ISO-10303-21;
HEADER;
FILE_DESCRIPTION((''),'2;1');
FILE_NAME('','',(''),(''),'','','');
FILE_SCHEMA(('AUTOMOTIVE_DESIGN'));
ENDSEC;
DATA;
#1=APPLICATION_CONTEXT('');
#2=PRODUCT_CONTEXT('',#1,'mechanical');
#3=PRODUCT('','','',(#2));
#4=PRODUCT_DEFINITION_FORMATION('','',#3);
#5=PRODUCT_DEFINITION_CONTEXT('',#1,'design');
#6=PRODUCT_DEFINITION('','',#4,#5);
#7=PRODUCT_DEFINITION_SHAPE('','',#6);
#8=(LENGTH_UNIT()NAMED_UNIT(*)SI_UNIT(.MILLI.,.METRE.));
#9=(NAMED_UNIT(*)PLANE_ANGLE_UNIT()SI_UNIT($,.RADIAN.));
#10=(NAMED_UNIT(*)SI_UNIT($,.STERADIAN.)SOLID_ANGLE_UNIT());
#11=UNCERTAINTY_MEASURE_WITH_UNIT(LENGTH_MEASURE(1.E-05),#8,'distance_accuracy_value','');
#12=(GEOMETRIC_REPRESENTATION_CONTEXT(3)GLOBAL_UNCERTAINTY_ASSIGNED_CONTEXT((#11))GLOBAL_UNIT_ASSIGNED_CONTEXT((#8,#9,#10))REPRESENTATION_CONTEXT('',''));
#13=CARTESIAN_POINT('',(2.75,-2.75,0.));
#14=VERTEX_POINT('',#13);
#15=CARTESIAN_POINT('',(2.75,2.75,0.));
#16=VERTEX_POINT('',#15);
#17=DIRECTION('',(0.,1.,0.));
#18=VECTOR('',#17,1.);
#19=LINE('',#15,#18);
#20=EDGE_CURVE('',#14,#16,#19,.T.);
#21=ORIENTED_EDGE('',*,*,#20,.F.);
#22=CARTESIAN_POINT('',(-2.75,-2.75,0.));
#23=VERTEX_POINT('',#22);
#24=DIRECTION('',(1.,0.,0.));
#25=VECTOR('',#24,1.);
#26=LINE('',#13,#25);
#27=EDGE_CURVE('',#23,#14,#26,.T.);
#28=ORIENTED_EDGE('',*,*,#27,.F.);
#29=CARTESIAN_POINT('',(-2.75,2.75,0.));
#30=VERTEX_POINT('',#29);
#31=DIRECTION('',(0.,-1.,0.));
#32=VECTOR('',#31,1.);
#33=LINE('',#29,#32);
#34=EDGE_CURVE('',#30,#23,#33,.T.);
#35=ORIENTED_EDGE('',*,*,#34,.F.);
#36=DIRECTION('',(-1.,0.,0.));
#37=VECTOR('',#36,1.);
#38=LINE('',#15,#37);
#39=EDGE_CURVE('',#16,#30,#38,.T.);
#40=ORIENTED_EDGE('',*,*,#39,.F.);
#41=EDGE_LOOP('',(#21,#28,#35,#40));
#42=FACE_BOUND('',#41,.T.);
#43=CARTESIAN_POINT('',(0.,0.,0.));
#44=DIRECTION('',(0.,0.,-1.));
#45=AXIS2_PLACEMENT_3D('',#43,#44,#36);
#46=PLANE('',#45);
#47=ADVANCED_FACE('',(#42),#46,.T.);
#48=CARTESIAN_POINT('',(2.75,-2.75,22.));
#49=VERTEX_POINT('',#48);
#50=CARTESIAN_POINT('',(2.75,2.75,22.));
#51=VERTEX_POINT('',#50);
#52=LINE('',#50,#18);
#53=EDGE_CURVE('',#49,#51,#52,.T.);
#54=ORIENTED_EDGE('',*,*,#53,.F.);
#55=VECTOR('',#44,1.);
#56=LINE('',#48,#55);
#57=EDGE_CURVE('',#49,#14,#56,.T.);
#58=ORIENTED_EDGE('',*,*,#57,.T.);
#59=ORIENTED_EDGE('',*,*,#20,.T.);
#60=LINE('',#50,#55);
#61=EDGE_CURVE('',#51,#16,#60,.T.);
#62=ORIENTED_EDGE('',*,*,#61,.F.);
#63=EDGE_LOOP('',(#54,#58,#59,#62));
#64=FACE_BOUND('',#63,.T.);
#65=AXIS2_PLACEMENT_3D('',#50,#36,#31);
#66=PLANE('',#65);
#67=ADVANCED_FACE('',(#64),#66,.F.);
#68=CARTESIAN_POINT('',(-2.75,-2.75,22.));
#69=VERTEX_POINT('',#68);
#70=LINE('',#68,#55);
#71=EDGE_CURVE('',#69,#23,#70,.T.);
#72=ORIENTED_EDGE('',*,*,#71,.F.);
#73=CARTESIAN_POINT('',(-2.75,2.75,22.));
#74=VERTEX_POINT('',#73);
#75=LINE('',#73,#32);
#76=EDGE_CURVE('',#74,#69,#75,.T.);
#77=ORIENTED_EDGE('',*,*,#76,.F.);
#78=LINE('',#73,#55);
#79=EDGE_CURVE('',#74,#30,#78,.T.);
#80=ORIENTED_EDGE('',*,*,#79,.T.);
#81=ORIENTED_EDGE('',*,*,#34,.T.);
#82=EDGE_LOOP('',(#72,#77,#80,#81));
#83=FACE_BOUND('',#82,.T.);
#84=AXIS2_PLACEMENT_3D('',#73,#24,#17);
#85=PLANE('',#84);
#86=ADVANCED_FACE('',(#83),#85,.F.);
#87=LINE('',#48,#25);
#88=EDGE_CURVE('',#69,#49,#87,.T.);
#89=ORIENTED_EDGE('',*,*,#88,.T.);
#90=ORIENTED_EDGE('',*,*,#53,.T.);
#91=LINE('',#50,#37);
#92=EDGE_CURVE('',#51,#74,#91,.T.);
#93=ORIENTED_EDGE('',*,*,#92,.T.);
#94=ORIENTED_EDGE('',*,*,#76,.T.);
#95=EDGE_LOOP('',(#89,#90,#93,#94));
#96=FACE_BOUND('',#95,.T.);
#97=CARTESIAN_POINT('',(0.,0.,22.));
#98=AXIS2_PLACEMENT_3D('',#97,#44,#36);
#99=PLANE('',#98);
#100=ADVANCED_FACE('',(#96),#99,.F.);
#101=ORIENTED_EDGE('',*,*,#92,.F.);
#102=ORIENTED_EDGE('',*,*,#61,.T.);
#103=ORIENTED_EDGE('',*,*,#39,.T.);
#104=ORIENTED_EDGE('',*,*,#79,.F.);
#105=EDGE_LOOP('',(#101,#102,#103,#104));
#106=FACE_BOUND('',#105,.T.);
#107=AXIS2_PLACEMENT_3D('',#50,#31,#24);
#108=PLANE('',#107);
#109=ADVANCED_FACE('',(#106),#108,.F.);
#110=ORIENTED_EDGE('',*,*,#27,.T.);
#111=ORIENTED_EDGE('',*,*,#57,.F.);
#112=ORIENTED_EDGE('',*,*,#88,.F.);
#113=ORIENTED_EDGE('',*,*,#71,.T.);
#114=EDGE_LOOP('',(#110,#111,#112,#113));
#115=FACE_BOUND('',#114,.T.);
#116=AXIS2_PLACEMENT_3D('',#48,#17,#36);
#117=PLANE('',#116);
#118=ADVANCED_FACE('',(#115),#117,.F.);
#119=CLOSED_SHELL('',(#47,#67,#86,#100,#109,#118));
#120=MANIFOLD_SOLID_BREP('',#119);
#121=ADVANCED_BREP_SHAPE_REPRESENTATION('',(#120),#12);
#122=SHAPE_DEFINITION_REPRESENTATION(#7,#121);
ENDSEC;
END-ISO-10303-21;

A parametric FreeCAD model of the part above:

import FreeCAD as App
import Part
import Sketcher

V = App.Vector
Q = App.Units.Quantity

doc = App.newDocument("Part")
body = doc.addObject("PartDesign::Body", "Body")

# Sketch on XY plane
sketch1 = body.newObject("Sketcher::SketchObject", "Sketch")
sketch1.AttachmentSupport = (doc.getObject("XY_Plane"), [""])
sketch1.MapMode = "FlatFace"
sketch1.addGeometry(Part.LineSegment(V(-2.75, 2.75, 0), V(-2.75, -2.75, 0)), False)
sketch1.addGeometry(Part.LineSegment(V(-2.75, -2.75, 0), V(2.75, -2.75, 0)), False)
sketch1.addGeometry(Part.LineSegment(V(2.75, -2.75, 0), V(2.75, 2.75, 0)), False)
sketch1.addGeometry(Part.LineSegment(V(2.75, 2.75, 0), V(-2.75, 2.75, 0)), False)
sketch1.addConstraint(Sketcher.Constraint("Coincident", 0, 2, 1, 1))
sketch1.addConstraint(Sketcher.Constraint("Coincident", 1, 2, 2, 1))
sketch1.addConstraint(Sketcher.Constraint("Coincident", 2, 2, 3, 1))
sketch1.addConstraint(Sketcher.Constraint("Coincident", 3, 2, 0, 1))
sketch1.addConstraint(Sketcher.Constraint("Vertical", 0))
sketch1.addConstraint(Sketcher.Constraint("Horizontal", 1))
sketch1.addConstraint(Sketcher.Constraint("Vertical", 2))
sketch1.addConstraint(Sketcher.Constraint("Horizontal", 3))
sketch1.addConstraint(Sketcher.Constraint("Symmetric", 0, 2, 2, 2, -1, 1))
sketch1.addConstraint(Sketcher.Constraint("Equal", 3, 0))
sketch1.addConstraint(Sketcher.Constraint("DistanceX", 1, 1, 1, 2, Q("5.5 mm")))
pad1 = body.newObject("PartDesign::Pad", "Pad")
pad1.Profile = sketch1
pad1.Length = 22

doc.recompute()
